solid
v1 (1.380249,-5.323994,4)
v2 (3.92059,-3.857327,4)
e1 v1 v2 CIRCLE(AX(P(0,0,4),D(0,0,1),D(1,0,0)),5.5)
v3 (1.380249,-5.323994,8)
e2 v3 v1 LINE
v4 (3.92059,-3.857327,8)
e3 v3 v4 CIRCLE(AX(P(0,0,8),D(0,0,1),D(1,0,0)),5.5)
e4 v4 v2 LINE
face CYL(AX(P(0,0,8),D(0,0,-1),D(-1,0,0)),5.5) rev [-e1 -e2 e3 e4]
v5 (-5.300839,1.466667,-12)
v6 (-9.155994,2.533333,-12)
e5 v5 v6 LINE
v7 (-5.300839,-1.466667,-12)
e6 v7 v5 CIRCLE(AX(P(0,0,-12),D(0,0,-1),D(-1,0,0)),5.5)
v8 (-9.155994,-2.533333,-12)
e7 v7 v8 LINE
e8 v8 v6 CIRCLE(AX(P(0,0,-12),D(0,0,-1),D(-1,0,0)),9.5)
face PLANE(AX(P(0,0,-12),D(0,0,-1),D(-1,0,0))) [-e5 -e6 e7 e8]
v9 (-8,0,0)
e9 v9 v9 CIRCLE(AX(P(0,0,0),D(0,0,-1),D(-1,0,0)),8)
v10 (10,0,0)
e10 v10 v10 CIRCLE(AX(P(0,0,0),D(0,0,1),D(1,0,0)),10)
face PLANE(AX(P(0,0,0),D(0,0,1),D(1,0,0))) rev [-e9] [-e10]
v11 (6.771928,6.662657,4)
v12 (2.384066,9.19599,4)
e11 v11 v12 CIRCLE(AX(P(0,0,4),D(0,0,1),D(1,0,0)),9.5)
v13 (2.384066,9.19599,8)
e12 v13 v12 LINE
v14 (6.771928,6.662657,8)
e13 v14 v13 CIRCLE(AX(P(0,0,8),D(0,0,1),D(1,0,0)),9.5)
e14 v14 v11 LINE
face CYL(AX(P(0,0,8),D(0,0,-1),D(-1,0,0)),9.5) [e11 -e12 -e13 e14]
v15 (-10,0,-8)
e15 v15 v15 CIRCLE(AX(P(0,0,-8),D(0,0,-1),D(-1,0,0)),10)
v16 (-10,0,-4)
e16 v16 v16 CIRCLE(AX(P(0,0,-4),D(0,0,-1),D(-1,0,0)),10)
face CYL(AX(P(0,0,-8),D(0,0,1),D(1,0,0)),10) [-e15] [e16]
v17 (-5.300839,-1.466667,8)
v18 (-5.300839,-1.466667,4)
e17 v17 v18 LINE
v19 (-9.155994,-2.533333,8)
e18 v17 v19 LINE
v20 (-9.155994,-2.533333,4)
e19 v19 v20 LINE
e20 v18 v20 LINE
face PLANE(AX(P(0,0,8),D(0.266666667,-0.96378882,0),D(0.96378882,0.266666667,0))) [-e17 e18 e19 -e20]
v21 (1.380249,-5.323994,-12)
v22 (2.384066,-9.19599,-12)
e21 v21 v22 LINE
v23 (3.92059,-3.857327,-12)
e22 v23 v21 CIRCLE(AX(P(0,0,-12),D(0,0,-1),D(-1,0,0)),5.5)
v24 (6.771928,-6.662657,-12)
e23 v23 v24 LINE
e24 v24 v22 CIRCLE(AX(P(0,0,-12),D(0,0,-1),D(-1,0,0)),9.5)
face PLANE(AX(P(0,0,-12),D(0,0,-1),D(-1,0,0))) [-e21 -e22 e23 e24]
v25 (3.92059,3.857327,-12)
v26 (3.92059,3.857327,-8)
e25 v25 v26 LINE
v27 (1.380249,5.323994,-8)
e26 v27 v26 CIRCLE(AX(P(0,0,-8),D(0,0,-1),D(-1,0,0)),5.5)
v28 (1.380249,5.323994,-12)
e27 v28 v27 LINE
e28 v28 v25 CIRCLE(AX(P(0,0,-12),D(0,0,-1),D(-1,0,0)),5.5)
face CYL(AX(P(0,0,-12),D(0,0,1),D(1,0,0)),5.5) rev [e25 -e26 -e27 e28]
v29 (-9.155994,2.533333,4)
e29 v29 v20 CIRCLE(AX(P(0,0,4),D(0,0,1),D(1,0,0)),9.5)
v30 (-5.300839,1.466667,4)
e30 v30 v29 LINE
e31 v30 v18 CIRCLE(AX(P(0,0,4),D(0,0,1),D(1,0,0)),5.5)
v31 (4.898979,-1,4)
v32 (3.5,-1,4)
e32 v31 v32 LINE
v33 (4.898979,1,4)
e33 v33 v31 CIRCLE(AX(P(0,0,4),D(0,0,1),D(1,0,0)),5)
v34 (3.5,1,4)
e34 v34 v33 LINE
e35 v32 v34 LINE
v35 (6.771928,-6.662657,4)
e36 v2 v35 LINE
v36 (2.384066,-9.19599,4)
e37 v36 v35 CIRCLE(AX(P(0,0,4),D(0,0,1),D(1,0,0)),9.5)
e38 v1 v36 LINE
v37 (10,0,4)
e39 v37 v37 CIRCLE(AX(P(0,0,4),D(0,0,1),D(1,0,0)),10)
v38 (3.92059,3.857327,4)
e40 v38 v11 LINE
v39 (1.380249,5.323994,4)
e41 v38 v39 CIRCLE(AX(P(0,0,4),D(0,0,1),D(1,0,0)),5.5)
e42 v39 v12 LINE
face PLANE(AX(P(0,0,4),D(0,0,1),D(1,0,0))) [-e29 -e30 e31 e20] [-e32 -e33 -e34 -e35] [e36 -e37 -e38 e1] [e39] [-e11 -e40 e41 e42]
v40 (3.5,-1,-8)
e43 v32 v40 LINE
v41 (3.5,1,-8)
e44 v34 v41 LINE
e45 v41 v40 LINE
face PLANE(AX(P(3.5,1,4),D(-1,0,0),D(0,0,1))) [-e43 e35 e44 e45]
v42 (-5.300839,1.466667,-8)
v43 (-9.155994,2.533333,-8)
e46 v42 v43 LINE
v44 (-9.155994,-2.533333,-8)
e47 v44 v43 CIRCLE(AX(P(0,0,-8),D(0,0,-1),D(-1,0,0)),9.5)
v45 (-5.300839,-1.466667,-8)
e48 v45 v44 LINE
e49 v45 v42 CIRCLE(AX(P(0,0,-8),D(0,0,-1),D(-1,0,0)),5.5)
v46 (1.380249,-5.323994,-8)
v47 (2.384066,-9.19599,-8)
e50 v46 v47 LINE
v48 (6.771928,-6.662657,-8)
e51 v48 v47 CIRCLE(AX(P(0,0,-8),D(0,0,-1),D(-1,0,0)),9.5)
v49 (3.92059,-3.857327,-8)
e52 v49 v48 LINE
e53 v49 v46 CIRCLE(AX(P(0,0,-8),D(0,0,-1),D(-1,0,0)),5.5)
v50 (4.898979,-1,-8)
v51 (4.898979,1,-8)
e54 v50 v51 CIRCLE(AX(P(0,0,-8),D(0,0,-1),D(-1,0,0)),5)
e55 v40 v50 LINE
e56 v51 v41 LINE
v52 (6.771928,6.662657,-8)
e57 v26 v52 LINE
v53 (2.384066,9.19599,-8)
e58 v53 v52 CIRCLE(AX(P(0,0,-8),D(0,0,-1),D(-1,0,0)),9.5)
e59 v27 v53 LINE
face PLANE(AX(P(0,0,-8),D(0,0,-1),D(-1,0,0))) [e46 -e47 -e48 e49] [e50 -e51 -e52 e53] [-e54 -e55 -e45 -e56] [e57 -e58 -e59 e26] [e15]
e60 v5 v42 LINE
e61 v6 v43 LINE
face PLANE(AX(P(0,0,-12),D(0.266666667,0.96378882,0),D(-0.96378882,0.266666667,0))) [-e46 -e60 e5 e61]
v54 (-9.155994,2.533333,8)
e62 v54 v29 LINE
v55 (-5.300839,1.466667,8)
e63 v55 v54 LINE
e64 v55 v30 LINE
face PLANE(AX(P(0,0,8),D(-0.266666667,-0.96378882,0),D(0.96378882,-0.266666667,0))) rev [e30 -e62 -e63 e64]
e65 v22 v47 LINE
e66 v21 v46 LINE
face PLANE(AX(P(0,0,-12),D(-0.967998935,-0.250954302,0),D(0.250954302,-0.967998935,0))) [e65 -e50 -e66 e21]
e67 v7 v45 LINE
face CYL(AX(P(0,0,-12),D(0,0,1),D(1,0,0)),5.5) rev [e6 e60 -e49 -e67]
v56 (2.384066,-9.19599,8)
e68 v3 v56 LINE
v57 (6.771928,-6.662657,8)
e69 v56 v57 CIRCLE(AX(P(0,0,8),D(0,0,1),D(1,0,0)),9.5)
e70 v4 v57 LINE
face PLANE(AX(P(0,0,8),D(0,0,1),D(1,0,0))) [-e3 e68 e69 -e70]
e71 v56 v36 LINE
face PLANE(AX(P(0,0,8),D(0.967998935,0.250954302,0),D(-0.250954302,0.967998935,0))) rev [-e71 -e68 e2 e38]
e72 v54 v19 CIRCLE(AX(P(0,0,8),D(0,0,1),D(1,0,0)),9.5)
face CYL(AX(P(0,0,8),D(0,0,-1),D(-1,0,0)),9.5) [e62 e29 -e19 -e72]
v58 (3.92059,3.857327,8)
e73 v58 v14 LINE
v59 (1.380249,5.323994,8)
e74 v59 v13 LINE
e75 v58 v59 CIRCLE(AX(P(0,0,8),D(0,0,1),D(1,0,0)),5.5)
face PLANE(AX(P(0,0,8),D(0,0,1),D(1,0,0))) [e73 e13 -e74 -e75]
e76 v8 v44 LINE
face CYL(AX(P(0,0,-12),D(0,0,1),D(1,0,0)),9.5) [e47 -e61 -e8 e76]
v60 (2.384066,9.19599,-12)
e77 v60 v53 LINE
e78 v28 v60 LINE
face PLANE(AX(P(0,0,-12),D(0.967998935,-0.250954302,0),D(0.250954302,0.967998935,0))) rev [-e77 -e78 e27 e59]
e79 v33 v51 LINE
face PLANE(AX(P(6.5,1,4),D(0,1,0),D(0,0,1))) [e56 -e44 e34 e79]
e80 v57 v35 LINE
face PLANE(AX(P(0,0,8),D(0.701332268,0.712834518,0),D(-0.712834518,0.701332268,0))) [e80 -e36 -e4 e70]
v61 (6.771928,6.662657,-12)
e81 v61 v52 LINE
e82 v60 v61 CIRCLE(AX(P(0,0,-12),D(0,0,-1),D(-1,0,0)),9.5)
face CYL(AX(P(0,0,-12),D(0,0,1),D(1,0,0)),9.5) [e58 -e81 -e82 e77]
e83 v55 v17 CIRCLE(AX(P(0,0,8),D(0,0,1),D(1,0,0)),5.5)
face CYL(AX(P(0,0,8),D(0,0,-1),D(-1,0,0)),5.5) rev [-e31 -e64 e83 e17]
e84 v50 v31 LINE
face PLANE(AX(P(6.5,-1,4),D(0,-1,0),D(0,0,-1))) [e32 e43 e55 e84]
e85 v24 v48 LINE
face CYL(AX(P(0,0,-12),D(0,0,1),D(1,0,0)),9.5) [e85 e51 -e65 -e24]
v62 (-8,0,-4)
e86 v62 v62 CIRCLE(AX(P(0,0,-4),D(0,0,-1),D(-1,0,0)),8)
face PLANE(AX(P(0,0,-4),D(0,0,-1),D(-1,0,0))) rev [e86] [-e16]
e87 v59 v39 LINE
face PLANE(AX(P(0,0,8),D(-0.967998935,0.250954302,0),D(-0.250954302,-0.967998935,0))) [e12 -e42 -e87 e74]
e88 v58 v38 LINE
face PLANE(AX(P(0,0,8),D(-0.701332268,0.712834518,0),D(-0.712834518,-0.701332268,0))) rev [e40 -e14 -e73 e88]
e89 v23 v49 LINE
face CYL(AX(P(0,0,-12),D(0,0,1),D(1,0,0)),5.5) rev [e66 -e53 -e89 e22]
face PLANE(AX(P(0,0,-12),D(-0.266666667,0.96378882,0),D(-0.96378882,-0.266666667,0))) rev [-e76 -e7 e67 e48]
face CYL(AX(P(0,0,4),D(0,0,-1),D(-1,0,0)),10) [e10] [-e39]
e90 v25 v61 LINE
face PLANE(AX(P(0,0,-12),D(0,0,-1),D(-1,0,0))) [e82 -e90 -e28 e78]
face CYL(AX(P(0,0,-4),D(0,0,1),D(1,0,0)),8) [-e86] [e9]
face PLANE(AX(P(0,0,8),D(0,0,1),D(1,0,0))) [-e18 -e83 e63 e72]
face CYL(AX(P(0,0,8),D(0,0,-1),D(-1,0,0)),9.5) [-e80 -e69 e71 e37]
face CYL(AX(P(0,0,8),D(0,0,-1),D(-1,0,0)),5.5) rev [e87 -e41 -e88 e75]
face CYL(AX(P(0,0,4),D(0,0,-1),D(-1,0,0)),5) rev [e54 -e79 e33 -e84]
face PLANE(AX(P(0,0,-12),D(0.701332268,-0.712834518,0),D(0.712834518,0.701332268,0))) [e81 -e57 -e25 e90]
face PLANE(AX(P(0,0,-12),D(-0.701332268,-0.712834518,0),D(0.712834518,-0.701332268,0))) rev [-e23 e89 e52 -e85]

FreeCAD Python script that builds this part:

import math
import FreeCAD as App
import Part
import Sketcher

doc = App.newDocument("Part")
body = doc.addObject("PartDesign::Body", "Body")

# Sketch on XY plane
sketch1 = doc.addObject("Sketcher::SketchObject", "Sketch")
body.addObject(sketch1)
sketch1.AttachmentSupport = (doc.XY_Plane, [""])
sketch1.MapMode = "FlatFace"
sketch1.addGeometry([
    Part.Circle(App.Vector(0, 0, 0), App.Vector(0, 0, 1), 10),
    Part.Circle(App.Vector(0, 0, 0), App.Vector(0, 0, 1), 5),
], False)
sketch1.addConstraint([
    Sketcher.Constraint("Coincident", 0, 3, -1, 1),
    Sketcher.Constraint("Coincident", 1, 3, -1, 1),
    Sketcher.Constraint("Diameter", 0, 20.0),
    Sketcher.Constraint("Diameter", 1, 10.0),
])
pad1 = doc.addObject("PartDesign::Pad", "Pad")
body.addObject(pad1)
pad1.Profile = sketch1
pad1.Length = 4

# Sketch on XY plane
sketch2 = doc.addObject("Sketcher::SketchObject", "Sketch001")
body.addObject(sketch2)
sketch2.AttachmentSupport = (doc.XY_Plane, [""])
sketch2.MapMode = "FlatFace"
sketch2.AttachmentOffset = App.Placement(App.Vector(0, 0, 4), App.Rotation())
sketch2.addGeometry([
    Part.ArcOfCircle(Part.Circle(App.Vector(0, 0, 0), App.Vector(0, 0, 1), 5.5), math.radians(164.53399), math.radians(180)),  # 0
    Part.LineSegment(App.Vector(-5.300839, 1.466667, 0), App.Vector(-9.155994, 2.533333, 0)),  # 1
    Part.ArcOfCircle(Part.Circle(App.Vector(0, 0, 0), App.Vector(0, 0, 1), 9.5), math.radians(164.53399), math.radians(180)),  # 2
    Part.ArcOfCircle(Part.Circle(App.Vector(0, 0, 0), App.Vector(0, 0, 1), 9.5), math.radians(180), math.radians(195.46601)),  # 3
    Part.LineSegment(App.Vector(-9.155994, -2.533333, 0), App.Vector(-5.300839, -1.466667, 0)),  # 4
    Part.ArcOfCircle(Part.Circle(App.Vector(0, 0, 0), App.Vector(0, 0, 1), 5.5), math.radians(-180), math.radians(-164.53399)),  # 5
    Part.ArcOfCircle(Part.Circle(App.Vector(0, 0, 0), App.Vector(0, 0, 1), 5.5), math.radians(-75.46601), math.radians(-44.53399)),  # 6
    Part.LineSegment(App.Vector(1.380249, -5.323994, 0), App.Vector(2.384066, -9.19599, 0)),  # 7
    Part.ArcOfCircle(Part.Circle(App.Vector(0, 0, 0), App.Vector(0, 0, 1), 9.5), math.radians(-75.46601), math.radians(-44.53399)),  # 8
    Part.LineSegment(App.Vector(6.771928, -6.662657, 0), App.Vector(3.92059, -3.857327, 0)),  # 9
    Part.LineSegment(App.Vector(2.384066, 9.19599, 0), App.Vector(1.380249, 5.323994, 0)),  # 10
    Part.ArcOfCircle(Part.Circle(App.Vector(0, 0, 0), App.Vector(0, 0, 1), 5.5), math.radians(44.53399), math.radians(75.46601)),  # 11
    Part.LineSegment(App.Vector(3.92059, 3.857327, 0), App.Vector(6.771928, 6.662657, 0)),  # 12
    Part.ArcOfCircle(Part.Circle(App.Vector(0, 0, 0), App.Vector(0, 0, 1), 9.5), math.radians(44.53399), math.radians(75.46601)),  # 13
], False)
sketch2.addConstraint([
    Sketcher.Constraint("Coincident", 0, 1, 1, 1),
    Sketcher.Constraint("Coincident", 1, 2, 2, 1),
    Sketcher.Constraint("Tangent", 2, 2, 3, 1),
    Sketcher.Constraint("Coincident", 3, 2, 4, 1),
    Sketcher.Constraint("Coincident", 4, 2, 5, 2),
    Sketcher.Constraint("Tangent", 5, 1, 0, 2),
    Sketcher.Constraint("Coincident", 6, 1, 7, 1),
    Sketcher.Constraint("Coincident", 7, 2, 8, 1),
    Sketcher.Constraint("Coincident", 8, 2, 9, 1),
    Sketcher.Constraint("Coincident", 9, 2, 6, 2),
    Sketcher.Constraint("Coincident", 10, 2, 11, 2),
    Sketcher.Constraint("Coincident", 11, 1, 12, 1),
    Sketcher.Constraint("Coincident", 12, 2, 13, 1),
    Sketcher.Constraint("Coincident", 13, 2, 10, 1),
    Sketcher.Constraint("Coincident", 0, 3, -1, 1),
    Sketcher.Constraint("Coincident", 2, 3, -1, 1),
    Sketcher.Constraint("Coincident", 6, 3, -1, 1),
    Sketcher.Constraint("Coincident", 8, 3, -1, 1),
    Sketcher.Constraint("Coincident", 11, 3, -1, 1),
    Sketcher.Constraint("Coincident", 13, 3, -1, 1),
    Sketcher.Constraint("Equal", 2, 3),
    Sketcher.Constraint("Equal", 0, 5),
    Sketcher.Constraint("Equal", 5, 6),
    Sketcher.Constraint("Equal", 3, 8),
    Sketcher.Constraint("Equal", 6, 11),
    Sketcher.Constraint("Equal", 8, 13),
    Sketcher.Constraint("PointOnObject", 2, 2, -1),
    Sketcher.Constraint("PointOnObject", 5, 1, -1),
    Sketcher.Constraint("Vertical", 1, 2, 3, 2),
    Sketcher.Constraint("Vertical", 0, 1, 4, 2),
    Sketcher.Constraint("Vertical", 6, 1, 10, 2),
    Sketcher.Constraint("Vertical", 9, 2, 11, 1),
    Sketcher.Constraint("Vertical", 8, 2, 12, 2),
    Sketcher.Constraint("Vertical", 7, 2, 13, 2),
    Sketcher.Constraint("Radius", 0, 5.5),
    Sketcher.Constraint("Radius", 2, 9.5),
    Sketcher.Constraint("DistanceY", 3, 2, 0, 1, 4.0),
    Sketcher.Constraint("DistanceX", 0, 1, -1, 1, 5.300839),
    Sketcher.Constraint("DistanceX", -1, 1, 6, 1, 1.380249),
    Sketcher.Constraint("DistanceY", 7, 2, -1, 1, 9.19599),
    Sketcher.Constraint("DistanceX", -1, 1, 9, 2, 3.92059),
    Sketcher.Constraint("DistanceX", 6, 1, 8, 2, 5.391679),
])
pad2 = doc.addObject("PartDesign::Pad", "Pad001")
body.addObject(pad2)
pad2.Profile = sketch2
pad2.Length = 4

# Sketch on XY plane
sketch3 = doc.addObject("Sketcher::SketchObject", "Sketch002")
body.addObject(sketch3)
sketch3.AttachmentSupport = (doc.XY_Plane, [""])
sketch3.MapMode = "FlatFace"
sketch3.addGeometry([
    Part.LineSegment(App.Vector(6.5, 1, 0), App.Vector(6.5, -1, 0)),
    Part.LineSegment(App.Vector(6.5, -1, 0), App.Vector(3.5, -1, 0)),
    Part.LineSegment(App.Vector(3.5, -1, 0), App.Vector(3.5, 1, 0)),
    Part.LineSegment(App.Vector(3.5, 1, 0), App.Vector(6.5, 1, 0)),
], False)
sketch3.addConstraint([
    Sketcher.Constraint("Coincident", 0, 2, 1, 1),
    Sketcher.Constraint("Coincident", 1, 2, 2, 1),
    Sketcher.Constraint("Coincident", 2, 2, 3, 1),
    Sketcher.Constraint("Coincident", 3, 2, 0, 1),
    Sketcher.Constraint("Vertical", 0),
    Sketcher.Constraint("Horizontal", 1),
    Sketcher.Constraint("Vertical", 2),
    Sketcher.Constraint("Horizontal", 3),
    Sketcher.Constraint("DistanceX", 1, 2, 1, 1, 3.0),
    Sketcher.Constraint("DistanceY", 0, 2, 0, 1, 2.0),
    Sketcher.Constraint("DistanceY", 0, 2, -1, 1, 1.0),
    Sketcher.Constraint("DistanceX", -1, 1, 0, 2, 6.5),
])
pad3 = doc.addObject("PartDesign::Pad", "Pad002")
body.addObject(pad3)
pad3.Profile = sketch3
pad3.Length = 4

# Sketch on XY plane
sketch4 = doc.addObject("Sketcher::SketchObject", "Sketch003")
body.addObject(sketch4)
sketch4.AttachmentSupport = (doc.XY_Plane, [""])
sketch4.MapMode = "FlatFace"
sketch4.AttachmentOffset = App.Placement(App.Vector(0, 0, -4), App.Rotation())
sketch4.addGeometry([
    Part.Circle(App.Vector(0, 0, 0), App.Vector(0, 0, 1), 8),  # 0
    Part.LineSegment(App.Vector(3.5, 0.5, 0), App.Vector(4.974937, 0.5, 0)),  # 1
    Part.ArcOfCircle(Part.Circle(App.Vector(0, 0, 0), App.Vector(0, 0, 1), 5), math.radians(5.73917), math.radians(348.463041)),  # 2
    Part.LineSegment(App.Vector(4.898979, -1, 0), App.Vector(3.5, -1, 0)),  # 3
    Part.LineSegment(App.Vector(3.5, -1, 0), App.Vector(3.5, 0.5, 0)),  # 4
], False)
sketch4.addConstraint([
    Sketcher.Constraint("Coincident", 1, 2, 2, 1),
    Sketcher.Constraint("Coincident", 2, 2, 3, 1),
    Sketcher.Constraint("Coincident", 3, 2, 4, 1),
    Sketcher.Constraint("Coincident", 4, 2, 1, 1),
    Sketcher.Constraint("Horizontal", 1),
    Sketcher.Constraint("Horizontal", 3),
    Sketcher.Constraint("Vertical", 4),
    Sketcher.Constraint("Coincident", 0, 3, -1, 1),
    Sketcher.Constraint("Coincident", 2, 3, -1, 1),
    Sketcher.Constraint("Diameter", 0, 16.0),
    Sketcher.Constraint("Radius", 2, 5.0),
    Sketcher.Constraint("DistanceY", 4, 1, 4, 2, 1.5),
    Sketcher.Constraint("DistanceY", 2, 2, -1, 1, 1.0),
    Sketcher.Constraint("DistanceX", -1, 1, 3, 2, 3.5),
])
pad4 = doc.addObject("PartDesign::Pad", "Pad003")
body.addObject(pad4)
pad4.Profile = sketch4
pad4.Length = 4

# Sketch on XY plane
sketch5 = doc.addObject("Sketcher::SketchObject", "Sketch004")
body.addObject(sketch5)
sketch5.AttachmentSupport = (doc.XY_Plane, [""])
sketch5.MapMode = "FlatFace"
sketch5.AttachmentOffset = App.Placement(App.Vector(0, 0, -8), App.Rotation())
sketch5.addGeometry([
    Part.Circle(App.Vector(0, 0, 0), App.Vector(0, 0, 1), 10),  # 0
    Part.LineSegment(App.Vector(3.5, 0.5, 0), App.Vector(4.974937, 0.5, 0)),  # 1
    Part.ArcOfCircle(Part.Circle(App.Vector(0, 0, 0), App.Vector(0, 0, 1), 5), math.radians(5.73917), math.radians(348.463041)),  # 2
    Part.LineSegment(App.Vector(4.898979, -1, 0), App.Vector(3.5, -1, 0)),  # 3
    Part.LineSegment(App.Vector(3.5, -1, 0), App.Vector(3.5, 0.5, 0)),  # 4
], False)
sketch5.addConstraint([
    Sketcher.Constraint("Coincident", 1, 2, 2, 1),
    Sketcher.Constraint("Coincident", 2, 2, 3, 1),
    Sketcher.Constraint("Coincident", 3, 2, 4, 1),
    Sketcher.Constraint("Coincident", 4, 2, 1, 1),
    Sketcher.Constraint("Horizontal", 1),
    Sketcher.Constraint("Horizontal", 3),
    Sketcher.Constraint("Vertical", 4),
    Sketcher.Constraint("Coincident", 0, 3, -1, 1),
    Sketcher.Constraint("Coincident", 2, 3, -1, 1),
    Sketcher.Constraint("Diameter", 0, 20.0),
    Sketcher.Constraint("Radius", 2, 5.0),
    Sketcher.Constraint("DistanceY", 4, 1, 4, 2, 1.5),
    Sketcher.Constraint("DistanceY", 2, 2, -1, 1, 1.0),
    Sketcher.Constraint("DistanceX", -1, 1, 3, 2, 3.5),
])
pad5 = doc.addObject("PartDesign::Pad", "Pad004")
body.addObject(pad5)
pad5.Profile = sketch5
pad5.Length = 4

# Sketch on XY plane
sketch6 = doc.addObject("Sketcher::SketchObject", "Sketch005")
body.addObject(sketch6)
sketch6.AttachmentSupport = (doc.XY_Plane, [""])
sketch6.MapMode = "FlatFace"
sketch6.AttachmentOffset = App.Placement(App.Vector(0, 0, -12), App.Rotation())
sketch6.addGeometry([
    Part.ArcOfCircle(Part.Circle(App.Vector(0, 0, 0), App.Vector(0, 0, 1), 5.5), math.radians(44.53399), math.radians(75.46601)),  # 0
    Part.LineSegment(App.Vector(1.380249, 5.323994, 0), App.Vector(2.384066, 9.19599, 0)),  # 1
    Part.ArcOfCircle(Part.Circle(App.Vector(0, 0, 0), App.Vector(0, 0, 1), 9.5), math.radians(44.53399), math.radians(75.46601)),  # 2
    Part.LineSegment(App.Vector(6.771928, 6.662657, 0), App.Vector(3.92059, 3.857327, 0)),  # 3
    Part.ArcOfCircle(Part.Circle(App.Vector(0, 0, 0), App.Vector(0, 0, 1), 5.5), math.radians(-75.46601), math.radians(-44.53399)),  # 4
    Part.LineSegment(App.Vector(3.92059, -3.857327, 0), App.Vector(6.771928, -6.662657, 0)),  # 5
    Part.ArcOfCircle(Part.Circle(App.Vector(0, 0, 0), App.Vector(0, 0, 1), 9.5), math.radians(-75.46601), math.radians(-44.53399)),  # 6
    Part.LineSegment(App.Vector(2.384066, -9.19599, 0), App.Vector(1.380249, -5.323994, 0)),  # 7
    Part.LineSegment(App.Vector(-9.155994, 2.533333, 0), App.Vector(-5.300839, 1.466667, 0)),  # 8
    Part.ArcOfCircle(Part.Circle(App.Vector(0, 0, 0), App.Vector(0, 0, 1), 5.5), math.radians(164.53399), math.radians(180)),  # 9
    Part.ArcOfCircle(Part.Circle(App.Vector(0, 0, 0), App.Vector(0, 0, 1), 5.5), math.radians(-180), math.radians(-164.53399)),  # 10
    Part.LineSegment(App.Vector(-5.300839, -1.466667, 0), App.Vector(-9.155994, -2.533333, 0)),  # 11
    Part.ArcOfCircle(Part.Circle(App.Vector(0, 0, 0), App.Vector(0, 0, 1), 9.5), math.radians(180), math.radians(195.46601)),  # 12
    Part.ArcOfCircle(Part.Circle(App.Vector(0, 0, 0), App.Vector(0, 0, 1), 9.5), math.radians(164.53399), math.radians(180)),  # 13
], False)
sketch6.addConstraint([
    Sketcher.Constraint("Coincident", 0, 2, 1, 1),
    Sketcher.Constraint("Coincident", 1, 2, 2, 2),
    Sketcher.Constraint("Coincident", 2, 1, 3, 1),
    Sketcher.Constraint("Coincident", 3, 2, 0, 1),
    Sketcher.Constraint("Coincident", 4, 2, 5, 1),
    Sketcher.Constraint("Coincident", 5, 2, 6, 2),
    Sketcher.Constraint("Coincident", 6, 1, 7, 1),
    Sketcher.Constraint("Coincident", 7, 2, 4, 1),
    Sketcher.Constraint("Coincident", 8, 2, 9, 1),
    Sketcher.Constraint("Tangent", 9, 2, 10, 1),
    Sketcher.Constraint("Coincident", 10, 2, 11, 1),
    Sketcher.Constraint("Coincident", 11, 2, 12, 2),
    Sketcher.Constraint("Tangent", 12, 1, 13, 2),
    Sketcher.Constraint("Coincident", 13, 1, 8, 1),
    Sketcher.Constraint("Coincident", 0, 3, -1, 1),
    Sketcher.Constraint("Coincident", 2, 3, -1, 1),
    Sketcher.Constraint("Coincident", 4, 3, -1, 1),
    Sketcher.Constraint("Coincident", 6, 3, -1, 1),
    Sketcher.Constraint("Coincident", 9, 3, -1, 1),
    Sketcher.Constraint("Coincident", 12, 3, -1, 1),
    Sketcher.Constraint("Equal", 0, 4),
    Sketcher.Constraint("Equal", 2, 6),
    Sketcher.Constraint("Equal", 4, 9),
    Sketcher.Constraint("Equal", 9, 10),
    Sketcher.Constraint("Equal", 6, 12),
    Sketcher.Constraint("Equal", 12, 13),
    Sketcher.Constraint("PointOnObject", 9, 2, -1),
    Sketcher.Constraint("PointOnObject", 12, 1, -1),
    Sketcher.Constraint("Vertical", 3, 2, 4, 2),
    Sketcher.Constraint("Vertical", 2, 1, 5, 2),
    Sketcher.Constraint("Vertical", 1, 2, 6, 1),
    Sketcher.Constraint("Vertical", 0, 2, 7, 2),
    Sketcher.Constraint("Vertical", 8, 2, 10, 2),
    Sketcher.Constraint("Vertical", 11, 2, 13, 1),
    Sketcher.Constraint("Radius", 0, 5.5),
    Sketcher.Constraint("Radius", 2, 9.5),
    Sketcher.Constraint("DistanceY", 11, 2, 8, 2, 4.0),
    Sketcher.Constraint("DistanceX", -1, 1, 0, 2, 1.380249),
    Sketcher.Constraint("DistanceY", -1, 1, 1, 2, 9.19599),
    Sketcher.Constraint("DistanceX", -1, 1, 3, 2, 3.92059),
    Sketcher.Constraint("DistanceX", 8, 2, -1, 1, 5.300839),
    Sketcher.Constraint("DistanceX", 0, 2, 2, 1, 5.391679),
])
pad6 = doc.addObject("PartDesign::Pad", "Pad005")
body.addObject(pad6)
pad6.Profile = sketch6
pad6.Length = 4

# Sketch on XY plane
sketch7 = doc.addObject("Sketcher::SketchObject", "Sketch006")
body.addObject(sketch7)
sketch7.AttachmentSupport = (doc.XY_Plane, [""])
sketch7.MapMode = "FlatFace"
sketch7.AttachmentOffset = App.Placement(App.Vector(0, 0, -8), App.Rotation())
sketch7.addGeometry([
    Part.LineSegment(App.Vector(3.5, 1, 0), App.Vector(4.898979, 1, 0)),
    Part.ArcOfCircle(Part.Circle(App.Vector(-0.000001, 0, 0), App.Vector(0, 0, 1), 5.000001), math.radians(5.739171), math.radians(11.536959)),
    Part.LineSegment(App.Vector(4.974937, 0.5, 0), App.Vector(3.5, 0.5, 0)),
    Part.LineSegment(App.Vector(3.5, 0.5, 0), App.Vector(3.5, 1, 0)),
], False)
sketch7.addConstraint([
    Sketcher.Constraint("Coincident", 0, 2, 1, 2),
    Sketcher.Constraint("Coincident", 1, 1, 2, 1),
    Sketcher.Constraint("Coincident", 2, 2, 3, 1),
    Sketcher.Constraint("Coincident", 3, 2, 0, 1),
    Sketcher.Constraint("Horizontal", 0),
    Sketcher.Constraint("Horizontal", 2),
    Sketcher.Constraint("Vertical", 3),
    Sketcher.Constraint("Coincident", 1, 3, -1, 1),
    Sketcher.Constraint("Radius", 1, 5.000001),
    Sketcher.Constraint("DistanceY", 3, 1, 3, 2, 0.5),
    Sketcher.Constraint("DistanceY", -1, 1, 0, 2, 1.0),
    Sketcher.Constraint("DistanceX", -1, 1, 2, 2, 3.5),
])
pad7 = doc.addObject("PartDesign::Pad", "Pad006")
body.addObject(pad7)
pad7.Profile = sketch7
pad7.Length = 10

doc.recompute()
